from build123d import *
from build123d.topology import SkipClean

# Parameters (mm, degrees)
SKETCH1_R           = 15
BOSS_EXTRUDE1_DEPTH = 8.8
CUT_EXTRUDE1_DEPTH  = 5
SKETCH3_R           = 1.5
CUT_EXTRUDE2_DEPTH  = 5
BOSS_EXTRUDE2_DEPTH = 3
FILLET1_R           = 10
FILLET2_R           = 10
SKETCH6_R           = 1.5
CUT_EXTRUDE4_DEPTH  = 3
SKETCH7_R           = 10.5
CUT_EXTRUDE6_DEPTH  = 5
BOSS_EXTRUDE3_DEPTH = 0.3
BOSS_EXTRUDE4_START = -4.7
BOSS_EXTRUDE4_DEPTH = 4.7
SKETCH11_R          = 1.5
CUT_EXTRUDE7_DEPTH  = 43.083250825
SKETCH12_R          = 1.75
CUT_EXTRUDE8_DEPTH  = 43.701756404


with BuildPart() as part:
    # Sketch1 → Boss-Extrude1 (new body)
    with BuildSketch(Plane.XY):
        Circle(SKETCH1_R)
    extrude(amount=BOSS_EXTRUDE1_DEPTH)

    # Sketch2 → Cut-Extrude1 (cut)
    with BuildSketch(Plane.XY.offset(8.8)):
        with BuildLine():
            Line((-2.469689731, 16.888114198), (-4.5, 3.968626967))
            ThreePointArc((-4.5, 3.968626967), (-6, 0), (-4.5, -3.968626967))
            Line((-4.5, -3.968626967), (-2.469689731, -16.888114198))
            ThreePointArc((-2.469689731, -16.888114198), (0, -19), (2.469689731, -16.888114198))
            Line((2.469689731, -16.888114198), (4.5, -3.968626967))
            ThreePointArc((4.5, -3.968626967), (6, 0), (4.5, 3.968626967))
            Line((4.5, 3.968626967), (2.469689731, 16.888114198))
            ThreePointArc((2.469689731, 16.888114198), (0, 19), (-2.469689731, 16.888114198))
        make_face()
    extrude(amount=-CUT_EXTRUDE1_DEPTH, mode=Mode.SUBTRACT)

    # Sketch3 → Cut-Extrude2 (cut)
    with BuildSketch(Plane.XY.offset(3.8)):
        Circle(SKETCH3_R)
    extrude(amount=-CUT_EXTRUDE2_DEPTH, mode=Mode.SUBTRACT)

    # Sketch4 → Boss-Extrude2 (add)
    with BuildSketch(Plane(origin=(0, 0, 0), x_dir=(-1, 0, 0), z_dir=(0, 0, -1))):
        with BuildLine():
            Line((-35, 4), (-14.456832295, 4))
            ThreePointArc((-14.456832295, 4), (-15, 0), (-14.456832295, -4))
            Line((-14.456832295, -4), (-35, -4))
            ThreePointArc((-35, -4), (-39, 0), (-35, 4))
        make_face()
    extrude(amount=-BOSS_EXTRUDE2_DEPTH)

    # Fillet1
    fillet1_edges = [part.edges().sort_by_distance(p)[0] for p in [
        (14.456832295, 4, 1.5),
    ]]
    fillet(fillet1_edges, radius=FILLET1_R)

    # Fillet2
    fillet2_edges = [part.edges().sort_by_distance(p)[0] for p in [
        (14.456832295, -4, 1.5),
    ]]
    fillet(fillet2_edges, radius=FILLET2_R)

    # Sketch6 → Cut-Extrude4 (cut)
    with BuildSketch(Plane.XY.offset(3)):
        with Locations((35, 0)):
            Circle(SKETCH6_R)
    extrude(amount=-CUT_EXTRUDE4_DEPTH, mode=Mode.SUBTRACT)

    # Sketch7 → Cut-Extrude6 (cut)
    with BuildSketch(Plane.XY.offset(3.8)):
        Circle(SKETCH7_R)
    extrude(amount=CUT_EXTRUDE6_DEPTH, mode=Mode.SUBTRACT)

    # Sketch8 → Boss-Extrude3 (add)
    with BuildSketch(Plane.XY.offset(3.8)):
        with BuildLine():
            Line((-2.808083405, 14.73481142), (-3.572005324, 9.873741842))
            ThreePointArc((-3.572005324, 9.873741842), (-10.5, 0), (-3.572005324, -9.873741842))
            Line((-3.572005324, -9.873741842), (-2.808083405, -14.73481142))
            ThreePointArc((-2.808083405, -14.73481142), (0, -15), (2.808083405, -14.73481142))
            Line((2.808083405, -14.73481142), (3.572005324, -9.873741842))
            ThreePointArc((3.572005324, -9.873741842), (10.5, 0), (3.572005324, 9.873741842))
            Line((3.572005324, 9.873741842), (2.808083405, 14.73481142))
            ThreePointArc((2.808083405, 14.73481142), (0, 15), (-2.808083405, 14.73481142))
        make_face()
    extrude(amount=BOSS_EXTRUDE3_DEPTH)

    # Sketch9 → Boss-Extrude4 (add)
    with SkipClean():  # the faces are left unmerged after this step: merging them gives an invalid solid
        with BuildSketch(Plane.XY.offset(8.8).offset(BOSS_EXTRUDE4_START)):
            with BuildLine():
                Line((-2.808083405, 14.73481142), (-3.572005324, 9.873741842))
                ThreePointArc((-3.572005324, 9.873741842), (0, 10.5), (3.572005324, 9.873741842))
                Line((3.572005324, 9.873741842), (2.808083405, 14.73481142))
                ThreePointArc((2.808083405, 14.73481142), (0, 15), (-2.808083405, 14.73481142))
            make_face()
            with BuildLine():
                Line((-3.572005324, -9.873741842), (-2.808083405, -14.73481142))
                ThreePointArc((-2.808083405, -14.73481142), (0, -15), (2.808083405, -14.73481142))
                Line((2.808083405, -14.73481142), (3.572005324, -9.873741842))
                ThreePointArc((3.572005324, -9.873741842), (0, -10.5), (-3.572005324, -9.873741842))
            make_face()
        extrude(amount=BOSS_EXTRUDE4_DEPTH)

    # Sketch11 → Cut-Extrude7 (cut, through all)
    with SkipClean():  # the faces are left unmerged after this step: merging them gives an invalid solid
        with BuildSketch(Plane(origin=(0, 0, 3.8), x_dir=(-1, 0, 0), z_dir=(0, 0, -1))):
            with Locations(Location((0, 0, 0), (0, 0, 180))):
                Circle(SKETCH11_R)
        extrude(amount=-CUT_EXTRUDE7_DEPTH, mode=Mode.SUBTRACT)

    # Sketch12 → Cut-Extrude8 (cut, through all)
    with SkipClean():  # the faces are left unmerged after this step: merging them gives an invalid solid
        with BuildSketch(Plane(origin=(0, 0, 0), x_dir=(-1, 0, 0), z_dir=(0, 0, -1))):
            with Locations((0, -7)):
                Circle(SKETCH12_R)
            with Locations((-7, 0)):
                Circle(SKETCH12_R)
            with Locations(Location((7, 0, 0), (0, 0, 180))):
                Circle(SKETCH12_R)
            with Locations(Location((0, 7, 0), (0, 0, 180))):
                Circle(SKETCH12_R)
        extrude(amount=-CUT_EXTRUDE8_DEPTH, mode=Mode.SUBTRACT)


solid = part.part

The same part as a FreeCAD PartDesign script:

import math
import FreeCAD as App
import Part
import Sketcher
Q = App.Units.Quantity


def edges_at(feature, points):
    """Names of the edges that pass closest to the given points."""
    edges = feature.Shape.Edges
    near = lambda p: min(range(len(edges)), key=lambda i: edges[i].distToShape(Part.Vertex(*p))[0])
    return sorted({f"Edge{near(p) + 1}" for p in points})

doc = App.newDocument("Part")
body = doc.addObject("PartDesign::Body", "Body")

# Sketch on XY plane
sketch1 = doc.addObject("Sketcher::SketchObject", "Sketch")
body.addObject(sketch1)
sketch1.AttachmentSupport = (doc.XY_Plane, [""])
sketch1.MapMode = "FlatFace"
sketch1.addGeometry(Part.Circle(App.Vector(0, 0, 0), App.Vector(0, 0, 1), 15), False)
sketch1.addConstraint([
    Sketcher.Constraint("Coincident", 0, 3, -1, 1),
    Sketcher.Constraint("Diameter", 0, Q("30 mm")),
])
pad1 = doc.addObject("PartDesign::Pad", "Pad")
body.addObject(pad1)
pad1.Profile = sketch1
pad1.Length = 8.8

# Sketch on XY plane
sketch2 = doc.addObject("Sketcher::SketchObject", "Sketch001")
body.addObject(sketch2)
sketch2.AttachmentSupport = (doc.XY_Plane, [""])
sketch2.MapMode = "FlatFace"
sketch2.AttachmentOffset = App.Placement(App.Vector(0, 0, 8.8), App.Rotation())
sketch2.addGeometry([
    Part.LineSegment(App.Vector(-2.5, 16.9, 0), App.Vector(-4.5, 4, 0)),  # 0
    Part.ArcOfCircle(Part.Circle(App.Vector(0, 0, 0), App.Vector(0, 0, 1), 6), math.radians(139), math.radians(221)),  # 1
    Part.LineSegment(App.Vector(-4.5, -4, 0), App.Vector(-2.5, -16.9, 0)),  # 2
    Part.ArcOfCircle(Part.Circle(App.Vector(0, -16.5, 0), App.Vector(0, 0, 1), 2.5), math.radians(-171), math.radians(-9)),  # 3
    Part.LineSegment(App.Vector(2.5, -16.9, 0), App.Vector(4.5, -4, 0)),  # 4
    Part.ArcOfCircle(Part.Circle(App.Vector(0, 0, 0), App.Vector(0, 0, 1), 6), math.radians(-41), math.radians(41)),  # 5
    Part.LineSegment(App.Vector(4.5, 4, 0), App.Vector(2.5, 16.9, 0)),  # 6
    Part.ArcOfCircle(Part.Circle(App.Vector(0, 16.5, 0), App.Vector(0, 0, 1), 2.5), math.radians(9), math.radians(171)),  # 7
], False)
sketch2.addConstraint([
    Sketcher.Constraint("Coincident", 0, 2, 1, 1),
    Sketcher.Constraint("Coincident", 1, 2, 2, 1),
    Sketcher.Constraint("Tangent", 2, 2, 3, 1),
    Sketcher.Constraint("Tangent", 3, 2, 4, 1),
    Sketcher.Constraint("Coincident", 4, 2, 5, 1),
    Sketcher.Constraint("Coincident", 5, 2, 6, 1),
    Sketcher.Constraint("Tangent", 6, 2, 7, 1),
    Sketcher.Constraint("Tangent", 7, 2, 0, 1),
    Sketcher.Constraint("Coincident", 1, 3, -1, 1),
    Sketcher.Constraint("Coincident", 5, 3, -1, 1),
    Sketcher.Constraint("Equal", 1, 5),
    Sketcher.Constraint("Equal", 3, 7),
    Sketcher.Constraint("Symmetric", 3, 3, 7, 3, -1, 1),
    Sketcher.Constraint("Symmetric", 2, 2, 3, 2, -2),
    Sketcher.Constraint("Parallel", 0, 4),
    Sketcher.Constraint("Parallel", 2, 6),
    Sketcher.Constraint("Radius", 1, Q("6 mm")),
    Sketcher.Constraint("Radius", 3, Q("2.5 mm")),
    Sketcher.Constraint("DistanceY", 3, 3, 7, 3, Q("33 mm")),
    Sketcher.Constraint("DistanceX", 1, 2, 4, 2, Q("9 mm")),
])
pocket1 = doc.addObject("PartDesign::Pocket", "Pocket")
body.addObject(pocket1)
pocket1.Profile = sketch2
pocket1.Length = 5

# Sketch on XY plane
sketch3 = doc.addObject("Sketcher::SketchObject", "Sketch002")
body.addObject(sketch3)
sketch3.AttachmentSupport = (doc.XY_Plane, [""])
sketch3.MapMode = "FlatFace"
sketch3.AttachmentOffset = App.Placement(App.Vector(0, 0, 3.8), App.Rotation())
sketch3.addGeometry(Part.Circle(App.Vector(0, 0, 0), App.Vector(0, 0, 1), 1.5), False)
sketch3.addConstraint([
    Sketcher.Constraint("Coincident", 0, 3, -1, 1),
    Sketcher.Constraint("Diameter", 0, Q("3 mm")),
])
pocket2 = doc.addObject("PartDesign::Pocket", "Pocket001")
body.addObject(pocket2)
pocket2.Profile = sketch3
pocket2.Length = 5

# Sketch on XY plane
sketch4 = doc.addObject("Sketcher::SketchObject", "Sketch003")
body.addObject(sketch4)
sketch4.AttachmentSupport = (doc.XY_Plane, [""])
sketch4.MapMode = "FlatFace"
sketch4.addGeometry([
    Part.LineSegment(App.Vector(14.5, 4, 0), App.Vector(35, 4, 0)),
    Part.ArcOfCircle(Part.Circle(App.Vector(35, 0, 0), App.Vector(0, 0, 1), 4), math.radians(-90), math.radians(90)),
    Part.LineSegment(App.Vector(35, -4, 0), App.Vector(14.5, -4, 0)),
    Part.ArcOfCircle(Part.Circle(App.Vector(0, 0, 0), App.Vector(0, 0, 1), 15), math.radians(-15), math.radians(15)),
], False)
sketch4.addConstraint([
    Sketcher.Constraint("Tangent", 0, 2, 1, 2),
    Sketcher.Constraint("Tangent", 1, 1, 2, 1),
    Sketcher.Constraint("Coincident", 2, 2, 3, 1),
    Sketcher.Constraint("Coincident", 3, 2, 0, 1),
    Sketcher.Constraint("Horizontal", 0),
    Sketcher.Constraint("Horizontal", 2),
    Sketcher.Constraint("Coincident", 3, 3, -1, 1),
    Sketcher.Constraint("PointOnObject", 1, 3, -1),
    Sketcher.Constraint("Radius", 1, Q("4 mm")),
    Sketcher.Constraint("Radius", 3, Q("15 mm")),
    Sketcher.Constraint("DistanceX", -1, 1, 1, 3, Q("35 mm")),
])
pad2 = doc.addObject("PartDesign::Pad", "Pad001")
body.addObject(pad2)
pad2.Profile = sketch4
pad2.Length = 3
doc.recompute()

fillet = doc.addObject("PartDesign::Fillet", "Fillet")
body.addObject(fillet)
fillet.Base = (pad2, edges_at(pad2, [(14.457, 4, 1.5)]))
fillet.Radius = 10
doc.recompute()

fillet2 = doc.addObject("PartDesign::Fillet", "Fillet001")
body.addObject(fillet2)
fillet2.Base = (fillet, edges_at(fillet, [(14.457, -4, 1.5)]))
fillet2.Radius = 10

# Sketch on XY plane
sketch5 = doc.addObject("Sketcher::SketchObject", "Sketch004")
body.addObject(sketch5)
sketch5.AttachmentSupport = (doc.XY_Plane, [""])
sketch5.MapMode = "FlatFace"
sketch5.AttachmentOffset = App.Placement(App.Vector(0, 0, 3), App.Rotation())
sketch5.addGeometry(Part.Circle(App.Vector(35, 0, 0), App.Vector(0, 0, 1), 1.5), False)
sketch5.addConstraint([
    Sketcher.Constraint("PointOnObject", 0, 3, -1),
    Sketcher.Constraint("Diameter", 0, Q("3 mm")),
    Sketcher.Constraint("DistanceX", -1, 1, 0, 3, Q("35 mm")),
])
pocket3 = doc.addObject("PartDesign::Pocket", "Pocket002")
body.addObject(pocket3)
pocket3.Profile = sketch5
pocket3.Length = 3

# Sketch on XY plane
sketch6 = doc.addObject("Sketcher::SketchObject", "Sketch005")
body.addObject(sketch6)
sketch6.AttachmentSupport = (doc.XY_Plane, [""])
sketch6.MapMode = "FlatFace"
sketch6.AttachmentOffset = App.Placement(App.Vector(0, 0, 3.8), App.Rotation())
sketch6.addGeometry(Part.Circle(App.Vector(0, 0, 0), App.Vector(0, 0, 1), 10), False)
sketch6.addConstraint([
    Sketcher.Constraint("Coincident", 0, 3, -1, 1),
    Sketcher.Constraint("Diameter", 0, Q("21 mm")),
])
pocket4 = doc.addObject("PartDesign::Pocket", "Pocket003")
body.addObject(pocket4)
pocket4.Profile = sketch6
pocket4.Length = 5
pocket4.Reversed = True

# Sketch on XY plane
sketch7 = doc.addObject("Sketcher::SketchObject", "Sketch006")
body.addObject(sketch7)
sketch7.AttachmentSupport = (doc.XY_Plane, [""])
sketch7.MapMode = "FlatFace"
sketch7.AttachmentOffset = App.Placement(App.Vector(0, 0, 3.8), App.Rotation())
sketch7.addGeometry([
    Part.LineSegment(App.Vector(-2.8, 14.7, 0), App.Vector(-3.6, 9.9, 0)),  # 0
    Part.ArcOfCircle(Part.Circle(App.Vector(0, 0, 0), App.Vector(0, 0, 1), 10.5), math.radians(110), math.radians(250)),  # 1
    Part.LineSegment(App.Vector(-3.6, -9.9, 0), App.Vector(-2.8, -14.7, 0)),  # 2
    Part.ArcOfCircle(Part.Circle(App.Vector(0, 0, 0), App.Vector(0, 0, 1), 15), math.radians(-101), math.radians(-79)),  # 3
    Part.LineSegment(App.Vector(2.8, -14.7, 0), App.Vector(3.6, -9.9, 0)),  # 4
    Part.ArcOfCircle(Part.Circle(App.Vector(0, 0, 0), App.Vector(0, 0, 1), 10.5), math.radians(-70), math.radians(70)),  # 5
    Part.LineSegment(App.Vector(3.6, 9.9, 0), App.Vector(2.8, 14.7, 0)),  # 6
    Part.ArcOfCircle(Part.Circle(App.Vector(0, 0, 0), App.Vector(0, 0, 1), 15), math.radians(79), math.radians(101)),  # 7
], False)
sketch7.addConstraint([
    Sketcher.Constraint("Coincident", 0, 2, 1, 1),
    Sketcher.Constraint("Coincident", 1, 2, 2, 1),
    Sketcher.Constraint("Coincident", 2, 2, 3, 1),
    Sketcher.Constraint("Coincident", 3, 2, 4, 1),
    Sketcher.Constraint("Coincident", 4, 2, 5, 1),
    Sketcher.Constraint("Coincident", 5, 2, 6, 1),
    Sketcher.Constraint("Coincident", 6, 2, 7, 1),
    Sketcher.Constraint("Coincident", 7, 2, 0, 1),
    Sketcher.Constraint("Coincident", 1, 3, -1, 1),
    Sketcher.Constraint("Coincident", 3, 3, -1, 1),
    Sketcher.Constraint("Coincident", 5, 3, -1, 1),
    Sketcher.Constraint("Coincident", 7, 3, -1, 1),
    Sketcher.Constraint("Equal", 1, 5),
    Sketcher.Constraint("Equal", 3, 7),
    Sketcher.Constraint("Parallel", 0, 4),
    Sketcher.Constraint("Parallel", 2, 6),
    Sketcher.Constraint("Horizontal", 2, 2, 3, 2),
    Sketcher.Constraint("Horizontal", 1, 2, 4, 2),
    Sketcher.Constraint("Horizontal", 0, 2, 5, 2),
    Sketcher.Constraint("Vertical", 0, 2, 1, 2),
    Sketcher.Constraint("Radius", 3, Q("15 mm")),
    Sketcher.Constraint("Radius", 1, Q("10.5 mm")),
    Sketcher.Constraint("Distance", 0, Q("4.920729 mm")),
    Sketcher.Constraint("DistanceY", -1, 1, 0, 2, Q("9.873742 mm")),
])
pad3 = doc.addObject("PartDesign::Pad", "Pad002")
body.addObject(pad3)
pad3.Profile = sketch7
pad3.Length = 0.3

# Sketch on XY plane
sketch8 = doc.addObject("Sketcher::SketchObject", "Sketch007")
body.addObject(sketch8)
sketch8.AttachmentSupport = (doc.XY_Plane, [""])
sketch8.MapMode = "FlatFace"
sketch8.AttachmentOffset = App.Placement(App.Vector(0, 0, 4.1), App.Rotation())
sketch8.addGeometry([
    Part.LineSegment(App.Vector(-2.8, 14.7, 0), App.Vector(-3.6, 9.9, 0)),  # 0
    Part.ArcOfCircle(Part.Circle(App.Vector(0, 0, 0), App.Vector(0, 0, 1), 10.5), math.radians(70), math.radians(110)),  # 1
    Part.LineSegment(App.Vector(3.6, 9.9, 0), App.Vector(2.8, 14.7, 0)),  # 2
    Part.ArcOfCircle(Part.Circle(App.Vector(0, 0, 0), App.Vector(0, 0, 1), 15), math.radians(79), math.radians(101)),  # 3
    Part.LineSegment(App.Vector(-3.6, -9.9, 0), App.Vector(-2.8, -14.7, 0)),  # 4
    Part.ArcOfCircle(Part.Circle(App.Vector(0, 0, 0), App.Vector(0, 0, 1), 15), math.radians(-101), math.radians(-79)),  # 5
    Part.LineSegment(App.Vector(2.8, -14.7, 0), App.Vector(3.6, -9.9, 0)),  # 6
    Part.ArcOfCircle(Part.Circle(App.Vector(0, 0, 0), App.Vector(0, 0, 1), 10.5), math.radians(-110), math.radians(-70)),  # 7
], False)
sketch8.addConstraint([
    Sketcher.Constraint("Coincident", 0, 2, 1, 2),
    Sketcher.Constraint("Coincident", 1, 1, 2, 1),
    Sketcher.Constraint("Coincident", 2, 2, 3, 1),
    Sketcher.Constraint("Coincident", 3, 2, 0, 1),
    Sketcher.Constraint("Coincident", 4, 2, 5, 1),
    Sketcher.Constraint("Coincident", 5, 2, 6, 1),
    Sketcher.Constraint("Coincident", 6, 2, 7, 2),
    Sketcher.Constraint("Coincident", 7, 1, 4, 1),
    Sketcher.Constraint("Coincident", 1, 3, -1, 1),
    Sketcher.Constraint("Coincident", 3, 3, -1, 1),
    Sketcher.Constraint("Coincident", 5, 3, -1, 1),
    Sketcher.Constraint("Coincident", 7, 3, -1, 1),
    Sketcher.Constraint("Equal", 3, 5),
    Sketcher.Constraint("Equal", 1, 7),
    Sketcher.Constraint("Parallel", 2, 4),
    Sketcher.Constraint("Parallel", 0, 6),
    Sketcher.Constraint("Horizontal", 0, 2, 1, 1),
    Sketcher.Constraint("Horizontal", 2, 2, 3, 2),
    Sketcher.Constraint("Horizontal", 4, 2, 5, 2),
    Sketcher.Constraint("Vertical", 3, 2, 4, 2),
    Sketcher.Constraint("Radius", 3, Q("15 mm")),
    Sketcher.Constraint("Radius", 1, Q("10.5 mm")),
    Sketcher.Constraint("Distance", 0, Q("4.920729 mm")),
    Sketcher.Constraint("DistanceY", -1, 1, 0, 2, Q("9.873742 mm")),
])
pad4 = doc.addObject("PartDesign::Pad", "Pad003")
body.addObject(pad4)
pad4.Profile = sketch8
pad4.Length = 4.7

# Sketch on XY plane
sketch9 = doc.addObject("Sketcher::SketchObject", "Sketch008")
body.addObject(sketch9)
sketch9.AttachmentSupport = (doc.XY_Plane, [""])
sketch9.MapMode = "FlatFace"
sketch9.AttachmentOffset = App.Placement(App.Vector(0, 0, 3.8), App.Rotation())
sketch9.addGeometry(Part.Circle(App.Vector(0, 0, 0), App.Vector(0, 0, 1), 1.5), False)
sketch9.addConstraint([
    Sketcher.Constraint("Coincident", 0, 3, -1, 1),
    Sketcher.Constraint("Diameter", 0, Q("3 mm")),
])
pocket5 = doc.addObject("PartDesign::Pocket", "Pocket004")
body.addObject(pocket5)
pocket5.Profile = sketch9
pocket5.Type = "ThroughAll"
pocket5.Reversed = True

# Sketch on XY plane
sketch10 = doc.addObject("Sketcher::SketchObject", "Sketch009")
body.addObject(sketch10)
sketch10.AttachmentSupport = (doc.XY_Plane, [""])
sketch10.MapMode = "FlatFace"
sketch10.addGeometry([
    Part.Circle(App.Vector(0, -7, 0), App.Vector(0, 0, 1), 1.8),
    Part.Circle(App.Vector(7, 0, 0), App.Vector(0, 0, 1), 1.8),
    Part.Circle(App.Vector(-7, 0, 0), App.Vector(0, 0, 1), 1.8),
    Part.Circle(App.Vector(0, 7, 0), App.Vector(0, 0, 1), 1.8),
], False)
sketch10.addConstraint([
    Sketcher.Constraint("Equal", 0, 1),
    Sketcher.Constraint("Equal", 1, 2),
    Sketcher.Constraint("Equal", 2, 3),
    Sketcher.Constraint("Symmetric", 1, 3, 2, 3, -1, 1),
    Sketcher.Constraint("Symmetric", 0, 3, 3, 3, -1, 1),
    Sketcher.Constraint("PointOnObject", 0, 3, -2),
    Sketcher.Constraint("PointOnObject", 1, 3, -1),
    Sketcher.Constraint("Diameter", 0, Q("3.5 mm")),
    Sketcher.Constraint("DistanceY", 0, 3, -1, 1, Q("7 mm")),
    Sketcher.Constraint("DistanceX", -1, 1, 1, 3, Q("7 mm")),
])
pocket6 = doc.addObject("PartDesign::Pocket", "Pocket005")
body.addObject(pocket6)
pocket6.Profile = sketch10
pocket6.Type = "ThroughAll"
pocket6.Reversed = True

doc.recompute()
